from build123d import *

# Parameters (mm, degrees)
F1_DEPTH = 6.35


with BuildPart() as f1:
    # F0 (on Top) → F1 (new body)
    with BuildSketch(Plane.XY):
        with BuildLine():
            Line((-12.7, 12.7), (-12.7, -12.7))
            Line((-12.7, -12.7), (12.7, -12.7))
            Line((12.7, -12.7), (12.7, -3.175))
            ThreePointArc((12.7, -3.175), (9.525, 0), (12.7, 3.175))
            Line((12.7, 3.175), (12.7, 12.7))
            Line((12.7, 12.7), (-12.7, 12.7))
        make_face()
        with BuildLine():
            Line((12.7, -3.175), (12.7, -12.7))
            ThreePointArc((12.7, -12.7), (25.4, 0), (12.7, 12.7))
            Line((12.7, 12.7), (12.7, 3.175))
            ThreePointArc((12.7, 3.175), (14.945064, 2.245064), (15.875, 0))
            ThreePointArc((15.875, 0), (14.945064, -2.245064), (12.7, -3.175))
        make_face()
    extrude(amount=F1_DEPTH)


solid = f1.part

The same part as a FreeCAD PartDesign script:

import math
import FreeCAD as App
import Part
import Sketcher
from FreeCAD import Vector
Q = App.Units.Quantity

doc = App.newDocument("Part")
body = doc.addObject("PartDesign::Body", "Body")

# Sketch on XY plane
sketch1 = body.newObject("Sketcher::SketchObject", "Sketch")
sketch1.AttachmentSupport = (doc.getObject("XY_Plane"), [""])
sketch1.MapMode = "FlatFace"
sketch1.addGeometry(Part.LineSegment(Vector(-12.7, 12.7, 0), Vector(-12.7, -12.7, 0)), False)
sketch1.addGeometry(Part.LineSegment(Vector(-12.7, -12.7, 0), Vector(12.7, -12.7, 0)), False)
sketch1.addGeometry(Part.ArcOfCircle(Part.Circle(Vector(12.7, 0, 0), Vector(0, 0, 1), 12.7), math.radians(-90), math.radians(90)), False)
sketch1.addGeometry(Part.LineSegment(Vector(12.7, 12.7, 0), Vector(-12.7, 12.7, 0)), False)
sketch1.addGeometry(Part.ArcOfCircle(Part.Circle(Vector(12.7, 0, 0), Vector(0, 0, 1), 3.2), math.radians(90), math.radians(270)), False)
sketch1.addGeometry(Part.ArcOfCircle(Part.Circle(Vector(12.7, 0, 0), Vector(0, 0, 1), 3.2), math.radians(0), math.radians(90)), False)
sketch1.addGeometry(Part.ArcOfCircle(Part.Circle(Vector(12.7, 0, 0), Vector(0, 0, 1), 3.2), math.radians(-90), math.radians(0)), False)
sketch1.addConstraint(Sketcher.Constraint("Coincident", 0, 2, 1, 1))
sketch1.addConstraint(Sketcher.Constraint("Tangent", 1, 2, 2, 1))
sketch1.addConstraint(Sketcher.Constraint("Tangent", 2, 2, 3, 1))
sketch1.addConstraint(Sketcher.Constraint("Coincident", 3, 2, 0, 1))
sketch1.addConstraint(Sketcher.Constraint("Tangent", 4, 1, 5, 2))
sketch1.addConstraint(Sketcher.Constraint("Tangent", 5, 1, 6, 2))
sketch1.addConstraint(Sketcher.Constraint("Tangent", 6, 1, 4, 2))
sketch1.addConstraint(Sketcher.Constraint("Vertical", 0))
sketch1.addConstraint(Sketcher.Constraint("Horizontal", 1))
sketch1.addConstraint(Sketcher.Constraint("Horizontal", 3))
sketch1.addConstraint(Sketcher.Constraint("Coincident", 4, 3, 2, 3))
sketch1.addConstraint(Sketcher.Constraint("Symmetric", 0, 2, 2, 2, -1, 1))
sketch1.addConstraint(Sketcher.Constraint("PointOnObject", 5, 1, -1))
sketch1.addConstraint(Sketcher.Constraint("Vertical", 2, 2, 4, 1))
sketch1.addConstraint(Sketcher.Constraint("Vertical", 4, 1, 6, 1))
sketch1.addConstraint(Sketcher.Constraint("Equal", 3, 0))
sketch1.addConstraint(Sketcher.Constraint("Radius", 2, Q("0.5 in")))
sketch1.addConstraint(Sketcher.Constraint("Radius", 4, Q("0.125 in")))
pad1 = body.newObject("PartDesign::Pad", "Pad")
pad1.Profile = sketch1
pad1.Length = Q("0.25 in")

doc.recompute()
